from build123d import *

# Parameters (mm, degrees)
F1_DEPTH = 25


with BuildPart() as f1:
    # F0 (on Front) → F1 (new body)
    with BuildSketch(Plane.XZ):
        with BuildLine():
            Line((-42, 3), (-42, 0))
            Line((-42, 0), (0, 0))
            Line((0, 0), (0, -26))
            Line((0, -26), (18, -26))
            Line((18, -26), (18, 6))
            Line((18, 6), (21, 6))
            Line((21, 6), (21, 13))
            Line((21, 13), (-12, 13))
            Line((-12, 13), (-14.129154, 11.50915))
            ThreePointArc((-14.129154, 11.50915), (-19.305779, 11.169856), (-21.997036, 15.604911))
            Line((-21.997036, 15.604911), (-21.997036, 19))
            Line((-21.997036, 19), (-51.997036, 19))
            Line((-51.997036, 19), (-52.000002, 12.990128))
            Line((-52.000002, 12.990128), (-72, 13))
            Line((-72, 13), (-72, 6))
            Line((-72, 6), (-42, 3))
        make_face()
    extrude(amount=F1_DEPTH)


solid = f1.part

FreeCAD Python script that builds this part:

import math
import FreeCAD as App
import Part
import Sketcher
from FreeCAD import Vector
Q = App.Units.Quantity

doc = App.newDocument("Part")
body = doc.addObject("PartDesign::Body", "Body")

sketch1 = body.newObject("Sketcher::SketchObject", "Sketch")
sketch1.AttachmentSupport = (doc.getObject("XZ_Plane"), [""])
sketch1.MapMode = "FlatFace"
sketch1.addGeometry(Part.LineSegment(Vector(-42, 3, 0), Vector(-42, 0, 0)), False)
sketch1.addGeometry(Part.LineSegment(Vector(-42, 0, 0), Vector(0, 0, 0)), False)
sketch1.addGeometry(Part.LineSegment(Vector(0, 0, 0), Vector(0, -26, 0)), False)
sketch1.addGeometry(Part.LineSegment(Vector(0, -26, 0), Vector(18, -26, 0)), False)
sketch1.addGeometry(Part.LineSegment(Vector(18, -26, 0), Vector(18, 6, 0)), False)
sketch1.addGeometry(Part.LineSegment(Vector(18, 6, 0), Vector(21, 6, 0)), False)
sketch1.addGeometry(Part.LineSegment(Vector(21, 6, 0), Vector(21, 13, 0)), False)
sketch1.addGeometry(Part.LineSegment(Vector(21, 13, 0), Vector(-12, 13, 0)), False)
sketch1.addGeometry(Part.LineSegment(Vector(-12, 13, 0), Vector(-14.1, 11.5, 0)), False)
sketch1.addGeometry(Part.ArcOfCircle(Part.Circle(Vector(-17, 15.6, 0), Vector(0, 0, 1), 5), math.radians(180), math.radians(305)), False)
sketch1.addGeometry(Part.LineSegment(Vector(-22, 15.6, 0), Vector(-22, 19, 0)), False)
sketch1.addGeometry(Part.LineSegment(Vector(-22, 19, 0), Vector(-52, 19, 0)), False)
sketch1.addGeometry(Part.LineSegment(Vector(-52, 19, 0), Vector(-52, 13, 0)), False)
sketch1.addGeometry(Part.LineSegment(Vector(-52, 13, 0), Vector(-72, 13, 0)), False)
sketch1.addGeometry(Part.LineSegment(Vector(-72, 13, 0), Vector(-72, 6, 0)), False)
sketch1.addGeometry(Part.LineSegment(Vector(-72, 6, 0), Vector(-42, 3, 0)), False)
sketch1.addConstraint(Sketcher.Constraint("Coincident", 0, 2, 1, 1))
sketch1.addConstraint(Sketcher.Constraint("Coincident", 1, 2, 2, 1))
sketch1.addConstraint(Sketcher.Constraint("Coincident", 2, 2, 3, 1))
sketch1.addConstraint(Sketcher.Constraint("Coincident", 3, 2, 4, 1))
sketch1.addConstraint(Sketcher.Constraint("Coincident", 4, 2, 5, 1))
sketch1.addConstraint(Sketcher.Constraint("Coincident", 5, 2, 6, 1))
sketch1.addConstraint(Sketcher.Constraint("Coincident", 6, 2, 7, 1))
sketch1.addConstraint(Sketcher.Constraint("Coincident", 7, 2, 8, 1))
sketch1.addConstraint(Sketcher.Constraint("Tangent", 8, 2, 9, 2))
sketch1.addConstraint(Sketcher.Constraint("Tangent", 9, 1, 10, 1))
sketch1.addConstraint(Sketcher.Constraint("Coincident", 10, 2, 11, 1))
sketch1.addConstraint(Sketcher.Constraint("Coincident", 11, 2, 12, 1))
sketch1.addConstraint(Sketcher.Constraint("Coincident", 12, 2, 13, 1))
sketch1.addConstraint(Sketcher.Constraint("Coincident", 13, 2, 14, 1))
sketch1.addConstraint(Sketcher.Constraint("Coincident", 14, 2, 15, 1))
sketch1.addConstraint(Sketcher.Constraint("Coincident", 15, 2, 0, 1))
sketch1.addConstraint(Sketcher.Constraint("Vertical", 0))
sketch1.addConstraint(Sketcher.Constraint("Horizontal", 1))
sketch1.addConstraint(Sketcher.Constraint("Vertical", 2))
sketch1.addConstraint(Sketcher.Constraint("Horizontal", 3))
sketch1.addConstraint(Sketcher.Constraint("Vertical", 4))
sketch1.addConstraint(Sketcher.Constraint("Horizontal", 5))
sketch1.addConstraint(Sketcher.Constraint("Vertical", 6))
sketch1.addConstraint(Sketcher.Constraint("Horizontal", 7))
sketch1.addConstraint(Sketcher.Constraint("Vertical", 10))
sketch1.addConstraint(Sketcher.Constraint("Horizontal", 11))
sketch1.addConstraint(Sketcher.Constraint("Vertical", 14))
sketch1.addConstraint(Sketcher.Constraint("Coincident", 1, 2, -1, 1))
sketch1.addConstraint(Sketcher.Constraint("Perpendicular", 12, 13))
sketch1.addConstraint(Sketcher.Constraint("Horizontal", 7, 2, 13, 2))
sketch1.addConstraint(Sketcher.Constraint("Horizontal", 5, 2, 14, 2))
sketch1.addConstraint(Sketcher.Constraint("Equal", 5, 0))
sketch1.addConstraint(Sketcher.Constraint("Radius", 9, Q("5 mm")))
sketch1.addConstraint(Sketcher.Constraint("DistanceX", 1, 1, 1, 2, Q("42 mm")))
sketch1.addConstraint(Sketcher.Constraint("DistanceX", 3, 1, 3, 2, Q("18 mm")))
sketch1.addConstraint(Sketcher.Constraint("DistanceX", 5, 1, 5, 2, Q("3 mm")))
sketch1.addConstraint(Sketcher.Constraint("DistanceX", 7, 2, 7, 1, Q("33 mm")))
sketch1.addConstraint(Sketcher.Constraint("DistanceX", 11, 2, 11, 1, Q("30 mm")))
sketch1.addConstraint(Sketcher.Constraint("DistanceY", 2, 2, 2, 1, Q("26 mm")))
sketch1.addConstraint(Sketcher.Constraint("DistanceY", 4, 1, 4, 2, Q("32 mm")))
sketch1.addConstraint(Sketcher.Constraint("DistanceY", 6, 1, 6, 2, Q("7 mm")))
sketch1.addConstraint(Sketcher.Constraint("Angle", 8, Q("-144.999994 deg")))
sketch1.addConstraint(Sketcher.Constraint("Distance", 13, Q("20 mm")))
sketch1.addConstraint(Sketcher.Constraint("DistanceY", -1, 1, 10, 2, Q("19 mm")))
sketch1.addConstraint(Sketcher.Constraint("DistanceX", 13, 2, -1, 1, Q("72 mm")))
sketch1.addConstraint(Sketcher.Constraint("DistanceY", 10, 1, 10, 2, Q("3.395089 mm")))
pad1 = body.newObject("PartDesign::Pad", "Pad")
pad1.Profile = sketch1
pad1.Length = 25

doc.recompute()
